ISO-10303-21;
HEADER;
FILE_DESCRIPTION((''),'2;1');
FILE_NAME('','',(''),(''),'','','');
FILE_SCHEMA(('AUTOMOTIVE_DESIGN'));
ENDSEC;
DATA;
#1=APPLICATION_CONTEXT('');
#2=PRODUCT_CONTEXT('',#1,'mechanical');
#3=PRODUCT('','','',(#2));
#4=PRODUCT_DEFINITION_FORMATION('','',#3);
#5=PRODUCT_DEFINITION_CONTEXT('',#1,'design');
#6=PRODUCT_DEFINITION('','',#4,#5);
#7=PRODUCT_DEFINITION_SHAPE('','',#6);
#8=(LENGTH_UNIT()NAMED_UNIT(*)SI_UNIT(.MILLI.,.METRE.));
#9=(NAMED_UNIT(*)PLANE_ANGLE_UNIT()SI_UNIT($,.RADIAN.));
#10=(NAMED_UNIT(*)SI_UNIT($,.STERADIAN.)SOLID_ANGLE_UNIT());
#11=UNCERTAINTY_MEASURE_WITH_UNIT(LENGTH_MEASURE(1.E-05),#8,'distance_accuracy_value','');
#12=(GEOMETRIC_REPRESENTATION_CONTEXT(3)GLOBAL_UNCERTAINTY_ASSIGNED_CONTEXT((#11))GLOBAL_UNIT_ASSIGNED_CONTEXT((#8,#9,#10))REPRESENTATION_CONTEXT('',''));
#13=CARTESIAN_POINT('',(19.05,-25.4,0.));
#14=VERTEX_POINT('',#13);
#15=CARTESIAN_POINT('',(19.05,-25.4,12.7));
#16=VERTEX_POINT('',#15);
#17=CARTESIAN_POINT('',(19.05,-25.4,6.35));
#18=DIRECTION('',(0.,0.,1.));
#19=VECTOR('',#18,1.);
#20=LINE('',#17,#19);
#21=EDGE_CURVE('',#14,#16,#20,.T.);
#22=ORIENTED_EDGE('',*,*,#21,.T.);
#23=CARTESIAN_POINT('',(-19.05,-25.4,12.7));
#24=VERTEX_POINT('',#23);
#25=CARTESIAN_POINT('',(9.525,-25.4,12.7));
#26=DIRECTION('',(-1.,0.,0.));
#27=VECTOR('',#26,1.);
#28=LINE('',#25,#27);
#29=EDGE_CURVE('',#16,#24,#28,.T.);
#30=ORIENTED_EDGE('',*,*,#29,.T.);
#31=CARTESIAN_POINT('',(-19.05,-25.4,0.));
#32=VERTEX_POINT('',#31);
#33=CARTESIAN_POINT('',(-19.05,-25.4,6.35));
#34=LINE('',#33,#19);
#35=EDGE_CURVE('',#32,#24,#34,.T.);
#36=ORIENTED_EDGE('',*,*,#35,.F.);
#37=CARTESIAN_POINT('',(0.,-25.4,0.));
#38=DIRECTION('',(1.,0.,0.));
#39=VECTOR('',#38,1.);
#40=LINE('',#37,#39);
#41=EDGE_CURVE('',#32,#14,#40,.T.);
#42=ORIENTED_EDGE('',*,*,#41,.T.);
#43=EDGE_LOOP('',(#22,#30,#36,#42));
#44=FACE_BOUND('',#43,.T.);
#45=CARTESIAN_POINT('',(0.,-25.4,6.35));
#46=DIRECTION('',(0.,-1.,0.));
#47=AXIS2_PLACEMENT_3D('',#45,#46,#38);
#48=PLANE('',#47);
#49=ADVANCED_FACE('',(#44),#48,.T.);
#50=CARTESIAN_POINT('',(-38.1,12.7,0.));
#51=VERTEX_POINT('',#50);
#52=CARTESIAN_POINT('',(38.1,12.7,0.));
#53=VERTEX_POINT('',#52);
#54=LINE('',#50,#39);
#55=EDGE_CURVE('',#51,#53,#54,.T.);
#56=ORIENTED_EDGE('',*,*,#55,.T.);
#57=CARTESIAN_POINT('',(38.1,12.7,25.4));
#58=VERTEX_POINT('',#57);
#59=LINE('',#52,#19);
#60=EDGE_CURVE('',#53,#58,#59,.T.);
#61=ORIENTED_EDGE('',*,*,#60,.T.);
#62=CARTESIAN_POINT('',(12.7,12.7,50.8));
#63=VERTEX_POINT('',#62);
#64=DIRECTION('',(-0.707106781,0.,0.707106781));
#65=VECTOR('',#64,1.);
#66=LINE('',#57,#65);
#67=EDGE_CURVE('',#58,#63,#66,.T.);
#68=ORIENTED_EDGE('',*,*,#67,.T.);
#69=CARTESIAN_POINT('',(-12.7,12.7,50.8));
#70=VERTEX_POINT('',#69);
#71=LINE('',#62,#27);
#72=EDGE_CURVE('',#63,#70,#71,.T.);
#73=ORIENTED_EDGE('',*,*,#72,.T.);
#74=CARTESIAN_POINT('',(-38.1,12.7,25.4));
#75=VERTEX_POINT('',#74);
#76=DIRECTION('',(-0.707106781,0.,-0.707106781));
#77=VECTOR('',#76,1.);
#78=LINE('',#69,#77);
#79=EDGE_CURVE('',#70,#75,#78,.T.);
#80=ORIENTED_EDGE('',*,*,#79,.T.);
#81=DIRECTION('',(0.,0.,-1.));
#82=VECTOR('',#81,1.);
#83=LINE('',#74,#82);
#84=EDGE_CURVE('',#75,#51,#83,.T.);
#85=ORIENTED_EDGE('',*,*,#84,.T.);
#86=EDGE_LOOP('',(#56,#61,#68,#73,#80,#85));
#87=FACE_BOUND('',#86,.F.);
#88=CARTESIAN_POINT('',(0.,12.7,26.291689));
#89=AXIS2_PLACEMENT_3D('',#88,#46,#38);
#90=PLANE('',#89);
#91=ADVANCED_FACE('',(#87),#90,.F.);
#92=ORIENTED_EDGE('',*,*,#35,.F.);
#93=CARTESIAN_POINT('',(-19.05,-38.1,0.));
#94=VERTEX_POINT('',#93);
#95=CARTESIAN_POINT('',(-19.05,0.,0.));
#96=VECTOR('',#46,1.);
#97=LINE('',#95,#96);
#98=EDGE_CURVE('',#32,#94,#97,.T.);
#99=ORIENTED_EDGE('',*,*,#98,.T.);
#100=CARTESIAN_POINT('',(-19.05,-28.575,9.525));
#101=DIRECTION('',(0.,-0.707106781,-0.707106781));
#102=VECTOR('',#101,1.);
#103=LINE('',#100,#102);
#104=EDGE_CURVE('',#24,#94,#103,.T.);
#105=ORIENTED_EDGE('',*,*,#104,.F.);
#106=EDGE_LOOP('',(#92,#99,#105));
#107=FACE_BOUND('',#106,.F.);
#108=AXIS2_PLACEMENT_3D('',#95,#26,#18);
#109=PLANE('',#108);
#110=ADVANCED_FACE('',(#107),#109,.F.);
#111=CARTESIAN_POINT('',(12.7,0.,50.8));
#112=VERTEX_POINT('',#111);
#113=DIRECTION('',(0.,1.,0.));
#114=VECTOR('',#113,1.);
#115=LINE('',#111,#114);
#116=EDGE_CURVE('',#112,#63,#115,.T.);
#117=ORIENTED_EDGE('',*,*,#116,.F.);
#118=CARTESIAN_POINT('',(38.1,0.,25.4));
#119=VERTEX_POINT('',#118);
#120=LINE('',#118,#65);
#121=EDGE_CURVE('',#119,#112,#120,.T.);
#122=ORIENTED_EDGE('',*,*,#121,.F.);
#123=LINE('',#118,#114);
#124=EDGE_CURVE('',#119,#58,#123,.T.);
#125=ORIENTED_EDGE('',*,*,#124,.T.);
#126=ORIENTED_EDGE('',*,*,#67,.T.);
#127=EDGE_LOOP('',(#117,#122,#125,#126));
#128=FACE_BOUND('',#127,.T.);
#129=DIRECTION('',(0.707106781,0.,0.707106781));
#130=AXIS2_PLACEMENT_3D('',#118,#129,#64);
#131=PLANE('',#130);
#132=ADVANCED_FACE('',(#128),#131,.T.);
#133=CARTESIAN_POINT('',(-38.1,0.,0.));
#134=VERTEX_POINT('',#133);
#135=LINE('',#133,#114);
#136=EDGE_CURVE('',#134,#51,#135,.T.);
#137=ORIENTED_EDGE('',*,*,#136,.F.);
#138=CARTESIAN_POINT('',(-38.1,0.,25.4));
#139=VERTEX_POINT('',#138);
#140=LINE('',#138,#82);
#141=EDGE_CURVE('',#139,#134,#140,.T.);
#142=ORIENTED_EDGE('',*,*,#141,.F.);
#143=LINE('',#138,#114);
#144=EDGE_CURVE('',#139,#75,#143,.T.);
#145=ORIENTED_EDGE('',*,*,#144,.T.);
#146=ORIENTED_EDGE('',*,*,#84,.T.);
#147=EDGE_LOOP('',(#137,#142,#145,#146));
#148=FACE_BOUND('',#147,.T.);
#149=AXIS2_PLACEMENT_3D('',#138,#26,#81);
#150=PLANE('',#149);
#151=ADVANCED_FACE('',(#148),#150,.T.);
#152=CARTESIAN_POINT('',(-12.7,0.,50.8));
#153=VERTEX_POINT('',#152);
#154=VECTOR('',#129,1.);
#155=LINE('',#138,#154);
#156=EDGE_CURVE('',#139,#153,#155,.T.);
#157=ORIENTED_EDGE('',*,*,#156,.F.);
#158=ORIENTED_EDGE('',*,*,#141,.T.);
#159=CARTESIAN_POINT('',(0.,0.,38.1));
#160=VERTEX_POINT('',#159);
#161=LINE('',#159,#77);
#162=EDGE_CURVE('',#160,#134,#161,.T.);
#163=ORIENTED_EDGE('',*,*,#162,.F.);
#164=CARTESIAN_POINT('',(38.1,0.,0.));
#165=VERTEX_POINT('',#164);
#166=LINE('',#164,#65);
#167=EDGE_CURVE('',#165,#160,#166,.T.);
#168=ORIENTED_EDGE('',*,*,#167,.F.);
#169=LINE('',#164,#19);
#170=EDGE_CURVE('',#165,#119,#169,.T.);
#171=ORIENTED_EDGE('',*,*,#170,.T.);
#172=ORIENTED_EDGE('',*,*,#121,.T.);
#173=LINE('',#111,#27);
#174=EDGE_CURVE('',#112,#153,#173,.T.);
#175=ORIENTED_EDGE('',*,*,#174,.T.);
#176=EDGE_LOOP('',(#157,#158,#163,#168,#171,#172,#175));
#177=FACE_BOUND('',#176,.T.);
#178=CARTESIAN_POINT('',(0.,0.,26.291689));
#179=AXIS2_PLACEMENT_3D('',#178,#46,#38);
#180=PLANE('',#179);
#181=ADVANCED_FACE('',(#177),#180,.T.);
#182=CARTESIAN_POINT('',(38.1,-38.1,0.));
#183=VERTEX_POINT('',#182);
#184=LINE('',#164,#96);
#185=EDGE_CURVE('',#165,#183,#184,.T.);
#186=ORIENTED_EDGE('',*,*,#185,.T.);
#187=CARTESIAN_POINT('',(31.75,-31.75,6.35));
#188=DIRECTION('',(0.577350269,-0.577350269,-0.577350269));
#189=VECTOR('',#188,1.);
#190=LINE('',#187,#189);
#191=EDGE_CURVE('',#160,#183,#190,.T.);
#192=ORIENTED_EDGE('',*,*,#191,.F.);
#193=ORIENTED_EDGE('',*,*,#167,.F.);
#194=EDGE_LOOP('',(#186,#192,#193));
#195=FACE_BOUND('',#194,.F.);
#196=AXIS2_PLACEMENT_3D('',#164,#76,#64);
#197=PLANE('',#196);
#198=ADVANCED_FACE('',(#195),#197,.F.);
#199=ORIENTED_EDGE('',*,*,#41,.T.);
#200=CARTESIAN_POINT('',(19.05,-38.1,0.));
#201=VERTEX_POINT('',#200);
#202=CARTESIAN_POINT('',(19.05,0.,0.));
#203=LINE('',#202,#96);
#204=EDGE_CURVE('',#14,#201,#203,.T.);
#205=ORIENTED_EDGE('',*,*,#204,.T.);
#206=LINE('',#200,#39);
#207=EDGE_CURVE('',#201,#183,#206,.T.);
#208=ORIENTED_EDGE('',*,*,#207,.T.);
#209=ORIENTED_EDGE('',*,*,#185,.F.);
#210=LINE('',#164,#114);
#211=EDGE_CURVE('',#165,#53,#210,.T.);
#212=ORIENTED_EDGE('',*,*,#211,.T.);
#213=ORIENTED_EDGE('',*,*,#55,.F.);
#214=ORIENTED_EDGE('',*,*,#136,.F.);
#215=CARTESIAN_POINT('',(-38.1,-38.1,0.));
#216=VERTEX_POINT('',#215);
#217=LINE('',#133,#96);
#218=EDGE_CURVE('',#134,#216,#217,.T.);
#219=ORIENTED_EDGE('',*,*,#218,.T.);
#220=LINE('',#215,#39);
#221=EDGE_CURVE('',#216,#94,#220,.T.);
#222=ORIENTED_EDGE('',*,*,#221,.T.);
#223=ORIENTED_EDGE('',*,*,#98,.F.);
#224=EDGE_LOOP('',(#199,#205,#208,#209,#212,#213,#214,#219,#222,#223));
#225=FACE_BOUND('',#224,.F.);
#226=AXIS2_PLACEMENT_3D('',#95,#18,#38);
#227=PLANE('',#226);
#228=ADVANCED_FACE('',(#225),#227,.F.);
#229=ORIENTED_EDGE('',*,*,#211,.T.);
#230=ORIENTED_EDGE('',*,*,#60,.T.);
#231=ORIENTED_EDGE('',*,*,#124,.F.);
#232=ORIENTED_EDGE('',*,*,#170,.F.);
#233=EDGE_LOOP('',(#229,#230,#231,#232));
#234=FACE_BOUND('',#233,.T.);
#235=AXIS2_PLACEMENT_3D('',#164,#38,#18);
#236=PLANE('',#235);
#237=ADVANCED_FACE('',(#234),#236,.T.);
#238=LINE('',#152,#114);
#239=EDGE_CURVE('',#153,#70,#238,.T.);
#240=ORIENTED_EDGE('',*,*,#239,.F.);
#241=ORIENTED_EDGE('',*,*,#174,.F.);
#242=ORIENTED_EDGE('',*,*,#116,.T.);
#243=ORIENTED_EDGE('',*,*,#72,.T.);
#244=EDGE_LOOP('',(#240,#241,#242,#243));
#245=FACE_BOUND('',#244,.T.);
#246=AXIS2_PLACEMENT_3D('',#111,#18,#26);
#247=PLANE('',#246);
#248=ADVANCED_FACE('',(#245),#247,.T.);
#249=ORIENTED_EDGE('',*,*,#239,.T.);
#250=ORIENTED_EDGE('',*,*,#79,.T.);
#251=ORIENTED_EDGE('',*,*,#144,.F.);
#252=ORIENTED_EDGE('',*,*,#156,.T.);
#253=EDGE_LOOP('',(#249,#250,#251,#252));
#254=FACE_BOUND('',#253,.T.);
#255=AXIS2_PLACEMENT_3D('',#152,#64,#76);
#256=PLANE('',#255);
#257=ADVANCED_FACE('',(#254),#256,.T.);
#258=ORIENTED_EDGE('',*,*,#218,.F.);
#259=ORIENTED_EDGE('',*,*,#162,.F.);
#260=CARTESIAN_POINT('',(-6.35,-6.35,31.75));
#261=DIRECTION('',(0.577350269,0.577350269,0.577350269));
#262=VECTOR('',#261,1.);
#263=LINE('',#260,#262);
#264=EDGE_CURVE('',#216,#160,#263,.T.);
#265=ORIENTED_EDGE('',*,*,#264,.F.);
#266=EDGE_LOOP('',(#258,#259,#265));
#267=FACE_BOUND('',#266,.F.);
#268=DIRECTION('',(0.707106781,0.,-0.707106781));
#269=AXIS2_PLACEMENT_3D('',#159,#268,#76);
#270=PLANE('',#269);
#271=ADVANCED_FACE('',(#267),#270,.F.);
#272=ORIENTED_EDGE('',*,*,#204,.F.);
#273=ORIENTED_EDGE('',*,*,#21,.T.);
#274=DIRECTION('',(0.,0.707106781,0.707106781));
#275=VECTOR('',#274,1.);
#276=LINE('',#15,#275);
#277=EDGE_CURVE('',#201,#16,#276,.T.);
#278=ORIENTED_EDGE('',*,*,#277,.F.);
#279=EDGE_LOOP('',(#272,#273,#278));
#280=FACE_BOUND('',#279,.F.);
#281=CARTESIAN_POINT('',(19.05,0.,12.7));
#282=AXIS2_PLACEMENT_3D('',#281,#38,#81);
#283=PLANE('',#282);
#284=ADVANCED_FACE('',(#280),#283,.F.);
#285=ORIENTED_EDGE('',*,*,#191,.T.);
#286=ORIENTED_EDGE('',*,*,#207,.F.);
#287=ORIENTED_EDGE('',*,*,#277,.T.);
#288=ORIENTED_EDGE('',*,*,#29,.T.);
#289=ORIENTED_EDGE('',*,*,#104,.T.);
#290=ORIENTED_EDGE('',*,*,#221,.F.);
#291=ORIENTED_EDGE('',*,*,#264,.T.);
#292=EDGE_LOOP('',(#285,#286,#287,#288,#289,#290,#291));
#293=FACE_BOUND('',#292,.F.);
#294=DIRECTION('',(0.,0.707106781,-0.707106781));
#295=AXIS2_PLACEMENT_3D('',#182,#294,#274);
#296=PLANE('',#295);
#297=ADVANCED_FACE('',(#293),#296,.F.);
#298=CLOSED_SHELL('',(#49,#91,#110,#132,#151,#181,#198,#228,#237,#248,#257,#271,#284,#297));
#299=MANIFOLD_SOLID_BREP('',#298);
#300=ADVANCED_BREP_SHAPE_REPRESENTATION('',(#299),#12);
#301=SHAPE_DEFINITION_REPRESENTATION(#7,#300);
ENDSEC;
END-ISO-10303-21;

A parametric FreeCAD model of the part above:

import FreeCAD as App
import Part
import Sketcher

V = App.Vector
Q = App.Units.Quantity

doc = App.newDocument("Part")
body = doc.addObject("PartDesign::Body", "Body")

# Sketch on XZ plane
sketch1 = doc.addObject("Sketcher::SketchObject", "Sketch")
body.addObject(sketch1)
sketch1.AttachmentSupport = (doc.XZ_Plane, [""])
sketch1.MapMode = "FlatFace"
sketch1.addGeometry(Part.LineSegment(V(0, 38, 0), V(-38, 0, 0)), False)
sketch1.addGeometry(Part.LineSegment(V(-38, 0, 0), V(-19, 0, 0)), False)
sketch1.addGeometry(Part.LineSegment(V(-19, 0, 0), V(-19, 13, 0)), False)
sketch1.addGeometry(Part.LineSegment(V(-19, 13, 0), V(19, 13, 0)), False)
sketch1.addGeometry(Part.LineSegment(V(19, 13, 0), V(19, 0, 0)), False)
sketch1.addGeometry(Part.LineSegment(V(19, 0, 0), V(38, 0, 0)), False)
sketch1.addGeometry(Part.LineSegment(V(38, 0, 0), V(0, 38, 0)), False)
sketch1.addConstraint(Sketcher.Constraint("Coincident", 0, 2, 1, 1))
sketch1.addConstraint(Sketcher.Constraint("Coincident", 1, 2, 2, 1))
sketch1.addConstraint(Sketcher.Constraint("Coincident", 2, 2, 3, 1))
sketch1.addConstraint(Sketcher.Constraint("Coincident", 3, 2, 4, 1))
sketch1.addConstraint(Sketcher.Constraint("Coincident", 4, 2, 5, 1))
sketch1.addConstraint(Sketcher.Constraint("Coincident", 5, 2, 6, 1))
sketch1.addConstraint(Sketcher.Constraint("Coincident", 6, 2, 0, 1))
sketch1.addConstraint(Sketcher.Constraint("Horizontal", 1))
sketch1.addConstraint(Sketcher.Constraint("Vertical", 2))
sketch1.addConstraint(Sketcher.Constraint("Horizontal", 3))
sketch1.addConstraint(Sketcher.Constraint("Vertical", 4))
sketch1.addConstraint(Sketcher.Constraint("Horizontal", 5))
sketch1.addConstraint(Sketcher.Constraint("Symmetric", 1, 2, 4, 2, -1, 1))
sketch1.addConstraint(Sketcher.Constraint("Symmetric", 0, 2, 5, 2, -2))
sketch1.addConstraint(Sketcher.Constraint("PointOnObject", 6, 2, -2))
sketch1.addConstraint(Sketcher.Constraint("Perpendicular", 0, 6))
sketch1.addConstraint(Sketcher.Constraint("DistanceX", 3, 1, 3, 2, Q("1.5 in")))
sketch1.addConstraint(Sketcher.Constraint("DistanceY", 2, 1, 2, 2, Q("0.5 in")))
sketch1.addConstraint(Sketcher.Constraint("DistanceX", 0, 2, 5, 2, Q("3 in")))
pad1 = doc.addObject("PartDesign::Pad", "Pad")
body.addObject(pad1)
pad1.Profile = sketch1
pad1.Length = Q("1.5 in")

# Sketch on XZ plane
sketch2 = doc.addObject("Sketcher::SketchObject", "Sketch001")
body.addObject(sketch2)
sketch2.AttachmentSupport = (doc.XZ_Plane, [""])
sketch2.MapMode = "FlatFace"
sketch2.addGeometry(Part.LineSegment(V(-38, 25, 0), V(-38, 0, 0)), False)
sketch2.addGeometry(Part.LineSegment(V(-38, 0, 0), V(38, 0, 0)), False)
sketch2.addGeometry(Part.LineSegment(V(38, 0, 0), V(38, 25, 0)), False)
sketch2.addGeometry(Part.LineSegment(V(38, 25, 0), V(13, 51, 0)), False)
sketch2.addGeometry(Part.LineSegment(V(13, 51, 0), V(-13, 51, 0)), False)
sketch2.addGeometry(Part.LineSegment(V(-13, 51, 0), V(-38, 25, 0)), False)
sketch2.addConstraint(Sketcher.Constraint("Coincident", 0, 2, 1, 1))
sketch2.addConstraint(Sketcher.Constraint("Coincident", 1, 2, 2, 1))
sketch2.addConstraint(Sketcher.Constraint("Coincident", 2, 2, 3, 1))
sketch2.addConstraint(Sketcher.Constraint("Coincident", 3, 2, 4, 1))
sketch2.addConstraint(Sketcher.Constraint("Coincident", 4, 2, 5, 1))
sketch2.addConstraint(Sketcher.Constraint("Coincident", 5, 2, 0, 1))
sketch2.addConstraint(Sketcher.Constraint("Vertical", 0))
sketch2.addConstraint(Sketcher.Constraint("Horizontal", 1))
sketch2.addConstraint(Sketcher.Constraint("Vertical", 2))
sketch2.addConstraint(Sketcher.Constraint("Horizontal", 4))
sketch2.addConstraint(Sketcher.Constraint("Symmetric", 0, 2, 1, 2, -1, 1))
sketch2.addConstraint(Sketcher.Constraint("Perpendicular", 3, 5))
sketch2.addConstraint(Sketcher.Constraint("Horizontal", 2, 2, 5, 2))
sketch2.addConstraint(Sketcher.Constraint("Equal", 4, 0))
sketch2.addConstraint(Sketcher.Constraint("Equal", 3, 5))
sketch2.addConstraint(Sketcher.Constraint("DistanceX", 1, 1, 1, 2, Q("3 in")))
sketch2.addConstraint(Sketcher.Constraint("DistanceX", 4, 2, 4, 1, Q("1 in")))
pad2 = doc.addObject("PartDesign::Pad", "Pad001")
body.addObject(pad2)
pad2.Profile = sketch2
pad2.Length = Q("0.5 in")
pad2.Reversed = True

# Sketch on YZ plane
sketch3 = doc.addObject("Sketcher::SketchObject", "Sketch002")
body.addObject(sketch3)
sketch3.AttachmentSupport = (doc.YZ_Plane, [""])
sketch3.MapMode = "FlatFace"
sketch3.AttachmentOffset = App.Placement(V(0, 0, 1.5 * 25.4), App.Rotation())
sketch3.addGeometry(Part.LineSegment(V(-38, 38, 0), V(-38, 0, 0)), False)
sketch3.addGeometry(Part.LineSegment(V(-38, 0, 0), V(0, 38, 0)), False)
sketch3.addGeometry(Part.LineSegment(V(0, 38, 0), V(-38, 38, 0)), False)
sketch3.addConstraint(Sketcher.Constraint("Coincident", 0, 2, 1, 1))
sketch3.addConstraint(Sketcher.Constraint("Coincident", 1, 2, 2, 1))
sketch3.addConstraint(Sketcher.Constraint("Coincident", 2, 2, 0, 1))
sketch3.addConstraint(Sketcher.Constraint("Vertical", 0))
sketch3.addConstraint(Sketcher.Constraint("Horizontal", 2))
sketch3.addConstraint(Sketcher.Constraint("PointOnObject", 0, 2, -1))
sketch3.addConstraint(Sketcher.Constraint("PointOnObject", 1, 2, -2))
sketch3.addConstraint(Sketcher.Constraint("Equal", 2, 0))
sketch3.addConstraint(Sketcher.Constraint("DistanceX", 2, 2, 2, 1, Q("1.5 in")))
pocket1 = doc.addObject("PartDesign::Pocket", "Pocket")
body.addObject(pocket1)
pocket1.Profile = sketch3
pocket1.Type = "ThroughAll"

# Sketch on XZ plane
sketch4 = doc.addObject("Sketcher::SketchObject", "Sketch003")
body.addObject(sketch4)
sketch4.AttachmentSupport = (doc.XZ_Plane, [""])
sketch4.MapMode = "FlatFace"
sketch4.addGeometry(Part.LineSegment(V(-19, 13, 0), V(-19, 0, 0)), False)
sketch4.addGeometry(Part.LineSegment(V(-19, 0, 0), V(19, 0, 0)), False)
sketch4.addGeometry(Part.LineSegment(V(19, 0, 0), V(19, 13, 0)), False)
sketch4.addGeometry(Part.LineSegment(V(19, 13, 0), V(-19, 13, 0)), False)
sketch4.addConstraint(Sketcher.Constraint("Coincident", 0, 2, 1, 1))
sketch4.addConstraint(Sketcher.Constraint("Coincident", 1, 2, 2, 1))
sketch4.addConstraint(Sketcher.Constraint("Coincident", 2, 2, 3, 1))
sketch4.addConstraint(Sketcher.Constraint("Coincident", 3, 2, 0, 1))
sketch4.addConstraint(Sketcher.Constraint("Vertical", 0))
sketch4.addConstraint(Sketcher.Constraint("Horizontal", 1))
sketch4.addConstraint(Sketcher.Constraint("Vertical", 2))
sketch4.addConstraint(Sketcher.Constraint("Horizontal", 3))
sketch4.addConstraint(Sketcher.Constraint("Symmetric", 0, 2, 1, 2, -1, 1))
sketch4.addConstraint(Sketcher.Constraint("DistanceX", 1, 1, 1, 2, Q("1.5 in")))
sketch4.addConstraint(Sketcher.Constraint("DistanceY", 0, 2, 0, 1, Q("0.5 in")))
pad3 = doc.addObject("PartDesign::Pad", "Pad002")
body.addObject(pad3)
pad3.Profile = sketch4
pad3.Length = Q("1 in")

doc.recompute()
